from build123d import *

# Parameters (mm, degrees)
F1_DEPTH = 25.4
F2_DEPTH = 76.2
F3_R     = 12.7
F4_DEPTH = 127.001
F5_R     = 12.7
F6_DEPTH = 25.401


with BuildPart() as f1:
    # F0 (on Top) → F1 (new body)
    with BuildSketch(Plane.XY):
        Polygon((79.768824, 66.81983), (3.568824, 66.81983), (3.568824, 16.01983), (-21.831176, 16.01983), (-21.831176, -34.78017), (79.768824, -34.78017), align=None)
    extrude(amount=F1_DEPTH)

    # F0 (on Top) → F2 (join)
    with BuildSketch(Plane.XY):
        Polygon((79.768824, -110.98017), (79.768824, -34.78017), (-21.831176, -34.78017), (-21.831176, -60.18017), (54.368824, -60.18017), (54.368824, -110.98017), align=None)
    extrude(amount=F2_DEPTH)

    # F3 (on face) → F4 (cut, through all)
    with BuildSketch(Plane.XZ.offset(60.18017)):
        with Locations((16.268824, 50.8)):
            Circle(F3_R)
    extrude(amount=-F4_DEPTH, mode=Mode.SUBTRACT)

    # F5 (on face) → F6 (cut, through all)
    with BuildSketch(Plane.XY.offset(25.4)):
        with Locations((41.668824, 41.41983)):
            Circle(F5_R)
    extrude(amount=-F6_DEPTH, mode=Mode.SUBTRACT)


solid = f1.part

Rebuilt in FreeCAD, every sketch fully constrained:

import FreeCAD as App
import Part
import Sketcher
from FreeCAD import Vector
Q = App.Units.Quantity


def add_polygon(sketch, points):
    """Adds a closed chain of lines whose ends are joined by coincident constraints."""
    first, n = sketch.GeometryCount, len(points)
    for a, b in zip(points, points[1:] + points[:1]):
        sketch.addGeometry(Part.LineSegment(App.Vector(*a, 0), App.Vector(*b, 0)), False)
    for i in range(n):
        sketch.addConstraint(Sketcher.Constraint("Coincident", first + i, 2, first + (i + 1) % n, 1))

doc = App.newDocument("Part")
body = doc.addObject("PartDesign::Body", "Body")

# Sketch on XY plane
sketch1 = body.newObject("Sketcher::SketchObject", "Sketch")
sketch1.AttachmentSupport = (doc.getObject("XY_Plane"), [""])
sketch1.MapMode = "FlatFace"
add_polygon(sketch1, [(80, 67), (4, 67), (4, 16), (-22, 16), (-22, -35), (80, -35)])  # lines 0-5
sketch1.addConstraint([
    Sketcher.Constraint("Horizontal", 0),
    Sketcher.Constraint("Vertical", 1),
    Sketcher.Constraint("Horizontal", 2),
    Sketcher.Constraint("Vertical", 3),
    Sketcher.Constraint("Horizontal", 4),
    Sketcher.Constraint("Vertical", 5),
    Sketcher.Constraint("Equal", 1, 3),
    Sketcher.Constraint("Equal", 4, 5),
    Sketcher.Constraint("DistanceX", 0, 2, 0, 1, Q("3 in")),
    Sketcher.Constraint("DistanceX", 2, 2, 2, 1, Q("1 in")),
    Sketcher.Constraint("DistanceY", -1, 1, 0, 2, 66.81983),
    Sketcher.Constraint("DistanceX", -1, 1, 0, 2, 3.568824),
])
pad1 = body.newObject("PartDesign::Pad", "Pad")
pad1.Profile = sketch1
pad1.Length = Q("1 in")

# Sketch on XY plane
sketch2 = body.newObject("Sketcher::SketchObject", "Sketch001")
sketch2.AttachmentSupport = (doc.getObject("XY_Plane"), [""])
sketch2.MapMode = "FlatFace"
add_polygon(sketch2, [(80, -111), (80, -35), (-22, -35), (-22, -60), (54, -60), (54, -111)])  # lines 0-5
sketch2.addConstraint([
    Sketcher.Constraint("Vertical", 0),
    Sketcher.Constraint("Horizontal", 1),
    Sketcher.Constraint("Vertical", 2),
    Sketcher.Constraint("Horizontal", 3),
    Sketcher.Constraint("Vertical", 4),
    Sketcher.Constraint("Horizontal", 5),
    Sketcher.Constraint("Equal", 3, 0),
    Sketcher.Constraint("Equal", 5, 2),
    Sketcher.Constraint("DistanceX", 1, 2, 1, 1, Q("4 in")),
    Sketcher.Constraint("DistanceX", 3, 1, 3, 2, Q("3 in")),
    Sketcher.Constraint("DistanceY", 0, 2, -1, 1, 34.78017),
    Sketcher.Constraint("DistanceX", -1, 1, 0, 2, 79.768824),
])
pad2 = body.newObject("PartDesign::Pad", "Pad001")
pad2.Profile = sketch2
pad2.Length = Q("3 in")

# Sketch on XZ plane
sketch3 = body.newObject("Sketcher::SketchObject", "Sketch002")
sketch3.AttachmentSupport = (doc.getObject("XZ_Plane"), [""])
sketch3.MapMode = "FlatFace"
sketch3.AttachmentOffset = App.Placement(Vector(0, 0, 60.18017), App.Rotation())
sketch3.addGeometry(Part.Circle(Vector(16, 51, 0), Vector(0, 0, 1), 13), False)
sketch3.addConstraint([
    Sketcher.Constraint("Diameter", 0, Q("1 in")),
    Sketcher.Constraint("DistanceY", -1, 1, 0, 3, Q("2 in")),
    Sketcher.Constraint("DistanceX", -1, 1, 0, 3, 16.268824),
])
pocket1 = body.newObject("PartDesign::Pocket", "Pocket")
pocket1.Profile = sketch3
pocket1.Type = "ThroughAll"

# Sketch on XY plane
sketch4 = body.newObject("Sketcher::SketchObject", "Sketch003")
sketch4.AttachmentSupport = (doc.getObject("XY_Plane"), [""])
sketch4.MapMode = "FlatFace"
sketch4.AttachmentOffset = App.Placement(Vector(0, 0, 1 * 25.4), App.Rotation())
sketch4.addGeometry(Part.Circle(Vector(42, 41, 0), Vector(0, 0, 1), 13), False)
sketch4.addConstraint([
    Sketcher.Constraint("Diameter", 0, Q("1 in")),
    Sketcher.Constraint("DistanceY", -1, 1, 0, 3, 41.41983),
    Sketcher.Constraint("DistanceX", -1, 1, 0, 3, 41.668824),
])
pocket2 = body.newObject("PartDesign::Pocket", "Pocket001")
pocket2.Profile = sketch4
pocket2.Type = "ThroughAll"

doc.recompute()
